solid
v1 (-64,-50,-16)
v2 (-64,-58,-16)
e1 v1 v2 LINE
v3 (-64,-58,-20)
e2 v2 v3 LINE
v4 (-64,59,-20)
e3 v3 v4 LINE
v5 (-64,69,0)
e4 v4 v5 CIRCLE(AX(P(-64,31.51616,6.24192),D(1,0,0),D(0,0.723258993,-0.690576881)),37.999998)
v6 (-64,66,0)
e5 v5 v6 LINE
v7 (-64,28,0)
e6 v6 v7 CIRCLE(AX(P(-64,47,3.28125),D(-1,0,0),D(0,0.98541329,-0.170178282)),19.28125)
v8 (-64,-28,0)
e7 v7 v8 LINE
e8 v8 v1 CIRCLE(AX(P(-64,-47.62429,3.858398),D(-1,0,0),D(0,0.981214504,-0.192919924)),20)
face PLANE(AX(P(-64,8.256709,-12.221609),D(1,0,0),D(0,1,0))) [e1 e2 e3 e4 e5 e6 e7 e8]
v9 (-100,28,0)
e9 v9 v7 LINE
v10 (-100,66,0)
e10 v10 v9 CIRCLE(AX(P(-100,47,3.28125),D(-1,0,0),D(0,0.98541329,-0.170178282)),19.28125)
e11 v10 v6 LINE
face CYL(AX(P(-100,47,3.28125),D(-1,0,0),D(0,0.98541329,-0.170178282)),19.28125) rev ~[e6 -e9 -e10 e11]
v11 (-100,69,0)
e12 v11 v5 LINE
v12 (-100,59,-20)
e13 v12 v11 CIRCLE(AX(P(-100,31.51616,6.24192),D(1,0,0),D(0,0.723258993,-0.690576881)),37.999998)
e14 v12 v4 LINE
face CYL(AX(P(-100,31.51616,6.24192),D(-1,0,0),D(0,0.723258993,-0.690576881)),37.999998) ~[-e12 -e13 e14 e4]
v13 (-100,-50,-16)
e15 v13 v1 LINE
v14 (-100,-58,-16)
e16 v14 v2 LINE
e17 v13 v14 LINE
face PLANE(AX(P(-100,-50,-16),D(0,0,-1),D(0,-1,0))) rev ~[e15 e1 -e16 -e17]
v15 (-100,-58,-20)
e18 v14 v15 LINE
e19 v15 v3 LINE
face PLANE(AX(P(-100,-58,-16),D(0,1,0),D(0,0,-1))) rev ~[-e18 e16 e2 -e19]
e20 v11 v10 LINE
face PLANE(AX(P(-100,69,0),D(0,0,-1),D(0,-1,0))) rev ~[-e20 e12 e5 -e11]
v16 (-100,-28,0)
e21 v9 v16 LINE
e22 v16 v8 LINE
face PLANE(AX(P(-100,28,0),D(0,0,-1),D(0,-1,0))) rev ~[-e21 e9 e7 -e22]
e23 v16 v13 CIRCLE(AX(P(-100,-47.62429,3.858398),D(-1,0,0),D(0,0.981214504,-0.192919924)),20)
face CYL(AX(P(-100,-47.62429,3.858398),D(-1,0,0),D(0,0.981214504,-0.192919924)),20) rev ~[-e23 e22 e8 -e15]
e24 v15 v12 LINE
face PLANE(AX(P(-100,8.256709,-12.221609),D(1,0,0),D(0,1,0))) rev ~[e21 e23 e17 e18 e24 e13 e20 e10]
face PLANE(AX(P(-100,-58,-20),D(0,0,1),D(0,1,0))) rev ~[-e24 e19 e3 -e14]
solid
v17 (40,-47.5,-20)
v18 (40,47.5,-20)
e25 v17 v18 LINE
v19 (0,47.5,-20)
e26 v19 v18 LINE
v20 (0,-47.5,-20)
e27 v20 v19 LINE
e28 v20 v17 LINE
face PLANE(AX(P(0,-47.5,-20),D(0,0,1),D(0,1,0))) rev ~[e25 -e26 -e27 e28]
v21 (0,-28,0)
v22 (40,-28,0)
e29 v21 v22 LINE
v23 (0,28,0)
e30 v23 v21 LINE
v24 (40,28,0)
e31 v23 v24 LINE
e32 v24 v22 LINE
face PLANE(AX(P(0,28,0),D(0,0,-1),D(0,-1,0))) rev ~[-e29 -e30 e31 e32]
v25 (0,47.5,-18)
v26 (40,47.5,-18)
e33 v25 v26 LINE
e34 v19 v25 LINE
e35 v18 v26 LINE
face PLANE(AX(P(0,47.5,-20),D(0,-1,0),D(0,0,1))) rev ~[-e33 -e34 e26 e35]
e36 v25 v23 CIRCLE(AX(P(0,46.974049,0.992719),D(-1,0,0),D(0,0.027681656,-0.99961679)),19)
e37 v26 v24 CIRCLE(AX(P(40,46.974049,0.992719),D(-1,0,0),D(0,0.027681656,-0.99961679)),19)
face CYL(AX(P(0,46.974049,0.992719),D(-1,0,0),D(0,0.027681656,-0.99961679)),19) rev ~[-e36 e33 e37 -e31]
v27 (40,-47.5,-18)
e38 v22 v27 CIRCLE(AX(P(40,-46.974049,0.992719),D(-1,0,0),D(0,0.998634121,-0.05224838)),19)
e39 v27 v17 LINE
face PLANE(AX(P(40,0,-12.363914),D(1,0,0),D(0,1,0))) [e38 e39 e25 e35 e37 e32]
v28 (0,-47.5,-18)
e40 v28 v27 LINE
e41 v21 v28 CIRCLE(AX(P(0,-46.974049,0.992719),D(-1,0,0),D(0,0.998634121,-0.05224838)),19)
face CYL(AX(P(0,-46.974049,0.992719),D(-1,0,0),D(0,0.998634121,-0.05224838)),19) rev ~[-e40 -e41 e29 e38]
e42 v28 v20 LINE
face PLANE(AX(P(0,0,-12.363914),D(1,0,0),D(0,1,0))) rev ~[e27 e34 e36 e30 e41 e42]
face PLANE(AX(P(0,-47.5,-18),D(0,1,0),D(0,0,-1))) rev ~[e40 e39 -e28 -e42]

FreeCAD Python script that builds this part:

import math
import FreeCAD as App
import Part
import Sketcher
from FreeCAD import Vector

doc = App.newDocument("Part")
params = doc.addObject("Spreadsheet::Sheet", "Params")
for row, (alias, value) in enumerate([
    ("sketch1_radius", "19 mm"),
    ("sketch1_width", "56 mm"),
    ("sketch1_width2", "95 mm"),
    ("sketch1_height", "2 mm"),
    ("pad1_length", "40 mm"),
    ("sketch2_radius", "20 mm"),
    ("sketch2_radius2", "37.999998 mm"),
    ("sketch2_width", "56 mm"),
    ("sketch2_width2", "8 mm"),
    ("sketch2_width3", "117 mm"),
    ("pad2_length", "36 mm"),
], start=1):
    params.set(f"A{row}", alias)
    params.set(f"B{row}", "=" + value)
    params.setAlias(f"B{row}", alias)

body = doc.addObject("PartDesign::Body", "Body")

# Sketch on YZ plane
sketch1 = body.newObject("Sketcher::SketchObject", "Sketch")
sketch1.AttachmentSupport = (doc.getObject("YZ_Plane"), [""])
sketch1.MapMode = "FlatFace"
sketch1.addGeometry([
    Part.ArcOfCircle(Part.Circle(Vector(47, 1, 0), Vector(0, 0, 1), 19), math.radians(-177), math.radians(-88)),  # 0
    Part.LineSegment(Vector(28, 0, 0), Vector(-28, 0, 0)),  # 1
    Part.ArcOfCircle(Part.Circle(Vector(-47, 1, 0), Vector(0, 0, 1), 19), math.radians(-92), math.radians(-3)),  # 2
    Part.LineSegment(Vector(-47.5, -18, 0), Vector(-47.5, -20, 0)),  # 3
    Part.LineSegment(Vector(-47.5, -20, 0), Vector(47.5, -20, 0)),  # 4
    Part.LineSegment(Vector(47.5, -20, 0), Vector(47.5, -18, 0)),  # 5
], False)
sketch1.addConstraint([
    Sketcher.Constraint("Coincident", 0, 1, 1, 1),
    Sketcher.Constraint("Coincident", 1, 2, 2, 2),
    Sketcher.Constraint("Coincident", 2, 1, 3, 1),
    Sketcher.Constraint("Coincident", 3, 2, 4, 1),
    Sketcher.Constraint("Coincident", 4, 2, 5, 1),
    Sketcher.Constraint("Coincident", 5, 2, 0, 2),
    Sketcher.Constraint("Horizontal", 1),
    Sketcher.Constraint("Vertical", 3),
    Sketcher.Constraint("Horizontal", 4),
    Sketcher.Constraint("Vertical", 5),
    Sketcher.Constraint("Equal", 0, 2),
    Sketcher.Constraint("Symmetric", 0, 1, 1, 2, -1, 1),
    Sketcher.Constraint("Symmetric", 2, 1, 5, 2, -2),
    Sketcher.Constraint("Radius", 0, 19.0),
    Sketcher.Constraint("DistanceX", 1, 2, 1, 1, 56.0),
    Sketcher.Constraint("DistanceX", 4, 1, 4, 2, 95.0),
    Sketcher.Constraint("DistanceY", 3, 2, 3, 1, 2.0),
    Sketcher.Constraint("DistanceY", 2, 1, -1, 1, 18.0),
])
sketch1.setExpression("Constraints[13]", "Params.sketch1_radius")
sketch1.setExpression("Constraints[14]", "Params.sketch1_width")
sketch1.setExpression("Constraints[15]", "Params.sketch1_width2")
sketch1.setExpression("Constraints[16]", "Params.sketch1_height")
pad1 = body.newObject("PartDesign::Pad", "Pad")
pad1.Profile = sketch1
pad1.setExpression("Length", "Params.pad1_length")
body2 = doc.addObject("PartDesign::Body", "Body001")

# Sketch on YZ plane
sketch2 = body2.newObject("Sketcher::SketchObject", "Sketch001")
sketch2.AttachmentSupport = (doc.getObject("YZ_Plane001"), [""])
sketch2.MapMode = "FlatFace"
sketch2.AttachmentOffset = App.Placement(Vector(0, 0, -100), App.Rotation())
sketch2.addGeometry([
    Part.LineSegment(Vector(28, 0, 0), Vector(-28, 0, 0)),  # 0
    Part.ArcOfCircle(Part.Circle(Vector(-47.6, 3.9, 0), Vector(0, 0, 1), 20), math.radians(-97), math.radians(-11)),  # 1
    Part.LineSegment(Vector(-50, -16, 0), Vector(-58, -16, 0)),  # 2
    Part.LineSegment(Vector(-58, -16, 0), Vector(-58, -20, 0)),  # 3
    Part.LineSegment(Vector(-58, -20, 0), Vector(59, -20, 0)),  # 4
    Part.ArcOfCircle(Part.Circle(Vector(31.5, 6.2, 0), Vector(0, 0, 1), 38), math.radians(-44), math.radians(-9)),  # 5
    Part.LineSegment(Vector(69, 0, 0), Vector(66, 0, 0)),  # 6
    Part.ArcOfCircle(Part.Circle(Vector(47, 3.3, 0), Vector(0, 0, 1), 19.3), math.radians(-170), math.radians(-10)),  # 7
], False)
sketch2.addConstraint([
    Sketcher.Constraint("Coincident", 0, 2, 1, 2),
    Sketcher.Constraint("Coincident", 1, 1, 2, 1),
    Sketcher.Constraint("Coincident", 2, 2, 3, 1),
    Sketcher.Constraint("Coincident", 3, 2, 4, 1),
    Sketcher.Constraint("Coincident", 4, 2, 5, 1),
    Sketcher.Constraint("Coincident", 5, 2, 6, 1),
    Sketcher.Constraint("Coincident", 6, 2, 7, 2),
    Sketcher.Constraint("Coincident", 7, 1, 0, 1),
    Sketcher.Constraint("Horizontal", 0),
    Sketcher.Constraint("Horizontal", 2),
    Sketcher.Constraint("Vertical", 3),
    Sketcher.Constraint("Horizontal", 4),
    Sketcher.Constraint("Horizontal", 6),
    Sketcher.Constraint("Symmetric", 0, 2, 7, 1, -1, 1),
    Sketcher.Constraint("PointOnObject", 5, 2, -1),
    Sketcher.Constraint("Radius", 1, 20.0),
    Sketcher.Constraint("Radius", 5, 37.999998),
    Sketcher.Constraint("DistanceX", 0, 2, 0, 1, 56.0),
    Sketcher.Constraint("DistanceX", 2, 2, 2, 1, 8.0),
    Sketcher.Constraint("DistanceX", 4, 1, 4, 2, 117.0),
    Sketcher.Constraint("DistanceX", 6, 2, 6, 1, 3.0),
    Sketcher.Constraint("DistanceY", 3, 2, 3, 1, 4.0),
    Sketcher.Constraint("DistanceX", -1, 1, 7, 3, 47.0),
    Sketcher.Constraint("DistanceX", 1, 1, -1, 1, 50.0),
    Sketcher.Constraint("DistanceY", 1, 1, -1, 1, 16.0),
    Sketcher.Constraint("Radius", 7, 19.28125),
])
sketch2.setExpression("Constraints[15]", "Params.sketch2_radius")
sketch2.setExpression("Constraints[16]", "Params.sketch2_radius2")
sketch2.setExpression("Constraints[17]", "Params.sketch2_width")
sketch2.setExpression("Constraints[18]", "Params.sketch2_width2")
sketch2.setExpression("Constraints[19]", "Params.sketch2_width3")
pad2 = body2.newObject("PartDesign::Pad", "Pad001")
pad2.Profile = sketch2
pad2.setExpression("Length", "Params.pad2_length")

doc.recompute()
